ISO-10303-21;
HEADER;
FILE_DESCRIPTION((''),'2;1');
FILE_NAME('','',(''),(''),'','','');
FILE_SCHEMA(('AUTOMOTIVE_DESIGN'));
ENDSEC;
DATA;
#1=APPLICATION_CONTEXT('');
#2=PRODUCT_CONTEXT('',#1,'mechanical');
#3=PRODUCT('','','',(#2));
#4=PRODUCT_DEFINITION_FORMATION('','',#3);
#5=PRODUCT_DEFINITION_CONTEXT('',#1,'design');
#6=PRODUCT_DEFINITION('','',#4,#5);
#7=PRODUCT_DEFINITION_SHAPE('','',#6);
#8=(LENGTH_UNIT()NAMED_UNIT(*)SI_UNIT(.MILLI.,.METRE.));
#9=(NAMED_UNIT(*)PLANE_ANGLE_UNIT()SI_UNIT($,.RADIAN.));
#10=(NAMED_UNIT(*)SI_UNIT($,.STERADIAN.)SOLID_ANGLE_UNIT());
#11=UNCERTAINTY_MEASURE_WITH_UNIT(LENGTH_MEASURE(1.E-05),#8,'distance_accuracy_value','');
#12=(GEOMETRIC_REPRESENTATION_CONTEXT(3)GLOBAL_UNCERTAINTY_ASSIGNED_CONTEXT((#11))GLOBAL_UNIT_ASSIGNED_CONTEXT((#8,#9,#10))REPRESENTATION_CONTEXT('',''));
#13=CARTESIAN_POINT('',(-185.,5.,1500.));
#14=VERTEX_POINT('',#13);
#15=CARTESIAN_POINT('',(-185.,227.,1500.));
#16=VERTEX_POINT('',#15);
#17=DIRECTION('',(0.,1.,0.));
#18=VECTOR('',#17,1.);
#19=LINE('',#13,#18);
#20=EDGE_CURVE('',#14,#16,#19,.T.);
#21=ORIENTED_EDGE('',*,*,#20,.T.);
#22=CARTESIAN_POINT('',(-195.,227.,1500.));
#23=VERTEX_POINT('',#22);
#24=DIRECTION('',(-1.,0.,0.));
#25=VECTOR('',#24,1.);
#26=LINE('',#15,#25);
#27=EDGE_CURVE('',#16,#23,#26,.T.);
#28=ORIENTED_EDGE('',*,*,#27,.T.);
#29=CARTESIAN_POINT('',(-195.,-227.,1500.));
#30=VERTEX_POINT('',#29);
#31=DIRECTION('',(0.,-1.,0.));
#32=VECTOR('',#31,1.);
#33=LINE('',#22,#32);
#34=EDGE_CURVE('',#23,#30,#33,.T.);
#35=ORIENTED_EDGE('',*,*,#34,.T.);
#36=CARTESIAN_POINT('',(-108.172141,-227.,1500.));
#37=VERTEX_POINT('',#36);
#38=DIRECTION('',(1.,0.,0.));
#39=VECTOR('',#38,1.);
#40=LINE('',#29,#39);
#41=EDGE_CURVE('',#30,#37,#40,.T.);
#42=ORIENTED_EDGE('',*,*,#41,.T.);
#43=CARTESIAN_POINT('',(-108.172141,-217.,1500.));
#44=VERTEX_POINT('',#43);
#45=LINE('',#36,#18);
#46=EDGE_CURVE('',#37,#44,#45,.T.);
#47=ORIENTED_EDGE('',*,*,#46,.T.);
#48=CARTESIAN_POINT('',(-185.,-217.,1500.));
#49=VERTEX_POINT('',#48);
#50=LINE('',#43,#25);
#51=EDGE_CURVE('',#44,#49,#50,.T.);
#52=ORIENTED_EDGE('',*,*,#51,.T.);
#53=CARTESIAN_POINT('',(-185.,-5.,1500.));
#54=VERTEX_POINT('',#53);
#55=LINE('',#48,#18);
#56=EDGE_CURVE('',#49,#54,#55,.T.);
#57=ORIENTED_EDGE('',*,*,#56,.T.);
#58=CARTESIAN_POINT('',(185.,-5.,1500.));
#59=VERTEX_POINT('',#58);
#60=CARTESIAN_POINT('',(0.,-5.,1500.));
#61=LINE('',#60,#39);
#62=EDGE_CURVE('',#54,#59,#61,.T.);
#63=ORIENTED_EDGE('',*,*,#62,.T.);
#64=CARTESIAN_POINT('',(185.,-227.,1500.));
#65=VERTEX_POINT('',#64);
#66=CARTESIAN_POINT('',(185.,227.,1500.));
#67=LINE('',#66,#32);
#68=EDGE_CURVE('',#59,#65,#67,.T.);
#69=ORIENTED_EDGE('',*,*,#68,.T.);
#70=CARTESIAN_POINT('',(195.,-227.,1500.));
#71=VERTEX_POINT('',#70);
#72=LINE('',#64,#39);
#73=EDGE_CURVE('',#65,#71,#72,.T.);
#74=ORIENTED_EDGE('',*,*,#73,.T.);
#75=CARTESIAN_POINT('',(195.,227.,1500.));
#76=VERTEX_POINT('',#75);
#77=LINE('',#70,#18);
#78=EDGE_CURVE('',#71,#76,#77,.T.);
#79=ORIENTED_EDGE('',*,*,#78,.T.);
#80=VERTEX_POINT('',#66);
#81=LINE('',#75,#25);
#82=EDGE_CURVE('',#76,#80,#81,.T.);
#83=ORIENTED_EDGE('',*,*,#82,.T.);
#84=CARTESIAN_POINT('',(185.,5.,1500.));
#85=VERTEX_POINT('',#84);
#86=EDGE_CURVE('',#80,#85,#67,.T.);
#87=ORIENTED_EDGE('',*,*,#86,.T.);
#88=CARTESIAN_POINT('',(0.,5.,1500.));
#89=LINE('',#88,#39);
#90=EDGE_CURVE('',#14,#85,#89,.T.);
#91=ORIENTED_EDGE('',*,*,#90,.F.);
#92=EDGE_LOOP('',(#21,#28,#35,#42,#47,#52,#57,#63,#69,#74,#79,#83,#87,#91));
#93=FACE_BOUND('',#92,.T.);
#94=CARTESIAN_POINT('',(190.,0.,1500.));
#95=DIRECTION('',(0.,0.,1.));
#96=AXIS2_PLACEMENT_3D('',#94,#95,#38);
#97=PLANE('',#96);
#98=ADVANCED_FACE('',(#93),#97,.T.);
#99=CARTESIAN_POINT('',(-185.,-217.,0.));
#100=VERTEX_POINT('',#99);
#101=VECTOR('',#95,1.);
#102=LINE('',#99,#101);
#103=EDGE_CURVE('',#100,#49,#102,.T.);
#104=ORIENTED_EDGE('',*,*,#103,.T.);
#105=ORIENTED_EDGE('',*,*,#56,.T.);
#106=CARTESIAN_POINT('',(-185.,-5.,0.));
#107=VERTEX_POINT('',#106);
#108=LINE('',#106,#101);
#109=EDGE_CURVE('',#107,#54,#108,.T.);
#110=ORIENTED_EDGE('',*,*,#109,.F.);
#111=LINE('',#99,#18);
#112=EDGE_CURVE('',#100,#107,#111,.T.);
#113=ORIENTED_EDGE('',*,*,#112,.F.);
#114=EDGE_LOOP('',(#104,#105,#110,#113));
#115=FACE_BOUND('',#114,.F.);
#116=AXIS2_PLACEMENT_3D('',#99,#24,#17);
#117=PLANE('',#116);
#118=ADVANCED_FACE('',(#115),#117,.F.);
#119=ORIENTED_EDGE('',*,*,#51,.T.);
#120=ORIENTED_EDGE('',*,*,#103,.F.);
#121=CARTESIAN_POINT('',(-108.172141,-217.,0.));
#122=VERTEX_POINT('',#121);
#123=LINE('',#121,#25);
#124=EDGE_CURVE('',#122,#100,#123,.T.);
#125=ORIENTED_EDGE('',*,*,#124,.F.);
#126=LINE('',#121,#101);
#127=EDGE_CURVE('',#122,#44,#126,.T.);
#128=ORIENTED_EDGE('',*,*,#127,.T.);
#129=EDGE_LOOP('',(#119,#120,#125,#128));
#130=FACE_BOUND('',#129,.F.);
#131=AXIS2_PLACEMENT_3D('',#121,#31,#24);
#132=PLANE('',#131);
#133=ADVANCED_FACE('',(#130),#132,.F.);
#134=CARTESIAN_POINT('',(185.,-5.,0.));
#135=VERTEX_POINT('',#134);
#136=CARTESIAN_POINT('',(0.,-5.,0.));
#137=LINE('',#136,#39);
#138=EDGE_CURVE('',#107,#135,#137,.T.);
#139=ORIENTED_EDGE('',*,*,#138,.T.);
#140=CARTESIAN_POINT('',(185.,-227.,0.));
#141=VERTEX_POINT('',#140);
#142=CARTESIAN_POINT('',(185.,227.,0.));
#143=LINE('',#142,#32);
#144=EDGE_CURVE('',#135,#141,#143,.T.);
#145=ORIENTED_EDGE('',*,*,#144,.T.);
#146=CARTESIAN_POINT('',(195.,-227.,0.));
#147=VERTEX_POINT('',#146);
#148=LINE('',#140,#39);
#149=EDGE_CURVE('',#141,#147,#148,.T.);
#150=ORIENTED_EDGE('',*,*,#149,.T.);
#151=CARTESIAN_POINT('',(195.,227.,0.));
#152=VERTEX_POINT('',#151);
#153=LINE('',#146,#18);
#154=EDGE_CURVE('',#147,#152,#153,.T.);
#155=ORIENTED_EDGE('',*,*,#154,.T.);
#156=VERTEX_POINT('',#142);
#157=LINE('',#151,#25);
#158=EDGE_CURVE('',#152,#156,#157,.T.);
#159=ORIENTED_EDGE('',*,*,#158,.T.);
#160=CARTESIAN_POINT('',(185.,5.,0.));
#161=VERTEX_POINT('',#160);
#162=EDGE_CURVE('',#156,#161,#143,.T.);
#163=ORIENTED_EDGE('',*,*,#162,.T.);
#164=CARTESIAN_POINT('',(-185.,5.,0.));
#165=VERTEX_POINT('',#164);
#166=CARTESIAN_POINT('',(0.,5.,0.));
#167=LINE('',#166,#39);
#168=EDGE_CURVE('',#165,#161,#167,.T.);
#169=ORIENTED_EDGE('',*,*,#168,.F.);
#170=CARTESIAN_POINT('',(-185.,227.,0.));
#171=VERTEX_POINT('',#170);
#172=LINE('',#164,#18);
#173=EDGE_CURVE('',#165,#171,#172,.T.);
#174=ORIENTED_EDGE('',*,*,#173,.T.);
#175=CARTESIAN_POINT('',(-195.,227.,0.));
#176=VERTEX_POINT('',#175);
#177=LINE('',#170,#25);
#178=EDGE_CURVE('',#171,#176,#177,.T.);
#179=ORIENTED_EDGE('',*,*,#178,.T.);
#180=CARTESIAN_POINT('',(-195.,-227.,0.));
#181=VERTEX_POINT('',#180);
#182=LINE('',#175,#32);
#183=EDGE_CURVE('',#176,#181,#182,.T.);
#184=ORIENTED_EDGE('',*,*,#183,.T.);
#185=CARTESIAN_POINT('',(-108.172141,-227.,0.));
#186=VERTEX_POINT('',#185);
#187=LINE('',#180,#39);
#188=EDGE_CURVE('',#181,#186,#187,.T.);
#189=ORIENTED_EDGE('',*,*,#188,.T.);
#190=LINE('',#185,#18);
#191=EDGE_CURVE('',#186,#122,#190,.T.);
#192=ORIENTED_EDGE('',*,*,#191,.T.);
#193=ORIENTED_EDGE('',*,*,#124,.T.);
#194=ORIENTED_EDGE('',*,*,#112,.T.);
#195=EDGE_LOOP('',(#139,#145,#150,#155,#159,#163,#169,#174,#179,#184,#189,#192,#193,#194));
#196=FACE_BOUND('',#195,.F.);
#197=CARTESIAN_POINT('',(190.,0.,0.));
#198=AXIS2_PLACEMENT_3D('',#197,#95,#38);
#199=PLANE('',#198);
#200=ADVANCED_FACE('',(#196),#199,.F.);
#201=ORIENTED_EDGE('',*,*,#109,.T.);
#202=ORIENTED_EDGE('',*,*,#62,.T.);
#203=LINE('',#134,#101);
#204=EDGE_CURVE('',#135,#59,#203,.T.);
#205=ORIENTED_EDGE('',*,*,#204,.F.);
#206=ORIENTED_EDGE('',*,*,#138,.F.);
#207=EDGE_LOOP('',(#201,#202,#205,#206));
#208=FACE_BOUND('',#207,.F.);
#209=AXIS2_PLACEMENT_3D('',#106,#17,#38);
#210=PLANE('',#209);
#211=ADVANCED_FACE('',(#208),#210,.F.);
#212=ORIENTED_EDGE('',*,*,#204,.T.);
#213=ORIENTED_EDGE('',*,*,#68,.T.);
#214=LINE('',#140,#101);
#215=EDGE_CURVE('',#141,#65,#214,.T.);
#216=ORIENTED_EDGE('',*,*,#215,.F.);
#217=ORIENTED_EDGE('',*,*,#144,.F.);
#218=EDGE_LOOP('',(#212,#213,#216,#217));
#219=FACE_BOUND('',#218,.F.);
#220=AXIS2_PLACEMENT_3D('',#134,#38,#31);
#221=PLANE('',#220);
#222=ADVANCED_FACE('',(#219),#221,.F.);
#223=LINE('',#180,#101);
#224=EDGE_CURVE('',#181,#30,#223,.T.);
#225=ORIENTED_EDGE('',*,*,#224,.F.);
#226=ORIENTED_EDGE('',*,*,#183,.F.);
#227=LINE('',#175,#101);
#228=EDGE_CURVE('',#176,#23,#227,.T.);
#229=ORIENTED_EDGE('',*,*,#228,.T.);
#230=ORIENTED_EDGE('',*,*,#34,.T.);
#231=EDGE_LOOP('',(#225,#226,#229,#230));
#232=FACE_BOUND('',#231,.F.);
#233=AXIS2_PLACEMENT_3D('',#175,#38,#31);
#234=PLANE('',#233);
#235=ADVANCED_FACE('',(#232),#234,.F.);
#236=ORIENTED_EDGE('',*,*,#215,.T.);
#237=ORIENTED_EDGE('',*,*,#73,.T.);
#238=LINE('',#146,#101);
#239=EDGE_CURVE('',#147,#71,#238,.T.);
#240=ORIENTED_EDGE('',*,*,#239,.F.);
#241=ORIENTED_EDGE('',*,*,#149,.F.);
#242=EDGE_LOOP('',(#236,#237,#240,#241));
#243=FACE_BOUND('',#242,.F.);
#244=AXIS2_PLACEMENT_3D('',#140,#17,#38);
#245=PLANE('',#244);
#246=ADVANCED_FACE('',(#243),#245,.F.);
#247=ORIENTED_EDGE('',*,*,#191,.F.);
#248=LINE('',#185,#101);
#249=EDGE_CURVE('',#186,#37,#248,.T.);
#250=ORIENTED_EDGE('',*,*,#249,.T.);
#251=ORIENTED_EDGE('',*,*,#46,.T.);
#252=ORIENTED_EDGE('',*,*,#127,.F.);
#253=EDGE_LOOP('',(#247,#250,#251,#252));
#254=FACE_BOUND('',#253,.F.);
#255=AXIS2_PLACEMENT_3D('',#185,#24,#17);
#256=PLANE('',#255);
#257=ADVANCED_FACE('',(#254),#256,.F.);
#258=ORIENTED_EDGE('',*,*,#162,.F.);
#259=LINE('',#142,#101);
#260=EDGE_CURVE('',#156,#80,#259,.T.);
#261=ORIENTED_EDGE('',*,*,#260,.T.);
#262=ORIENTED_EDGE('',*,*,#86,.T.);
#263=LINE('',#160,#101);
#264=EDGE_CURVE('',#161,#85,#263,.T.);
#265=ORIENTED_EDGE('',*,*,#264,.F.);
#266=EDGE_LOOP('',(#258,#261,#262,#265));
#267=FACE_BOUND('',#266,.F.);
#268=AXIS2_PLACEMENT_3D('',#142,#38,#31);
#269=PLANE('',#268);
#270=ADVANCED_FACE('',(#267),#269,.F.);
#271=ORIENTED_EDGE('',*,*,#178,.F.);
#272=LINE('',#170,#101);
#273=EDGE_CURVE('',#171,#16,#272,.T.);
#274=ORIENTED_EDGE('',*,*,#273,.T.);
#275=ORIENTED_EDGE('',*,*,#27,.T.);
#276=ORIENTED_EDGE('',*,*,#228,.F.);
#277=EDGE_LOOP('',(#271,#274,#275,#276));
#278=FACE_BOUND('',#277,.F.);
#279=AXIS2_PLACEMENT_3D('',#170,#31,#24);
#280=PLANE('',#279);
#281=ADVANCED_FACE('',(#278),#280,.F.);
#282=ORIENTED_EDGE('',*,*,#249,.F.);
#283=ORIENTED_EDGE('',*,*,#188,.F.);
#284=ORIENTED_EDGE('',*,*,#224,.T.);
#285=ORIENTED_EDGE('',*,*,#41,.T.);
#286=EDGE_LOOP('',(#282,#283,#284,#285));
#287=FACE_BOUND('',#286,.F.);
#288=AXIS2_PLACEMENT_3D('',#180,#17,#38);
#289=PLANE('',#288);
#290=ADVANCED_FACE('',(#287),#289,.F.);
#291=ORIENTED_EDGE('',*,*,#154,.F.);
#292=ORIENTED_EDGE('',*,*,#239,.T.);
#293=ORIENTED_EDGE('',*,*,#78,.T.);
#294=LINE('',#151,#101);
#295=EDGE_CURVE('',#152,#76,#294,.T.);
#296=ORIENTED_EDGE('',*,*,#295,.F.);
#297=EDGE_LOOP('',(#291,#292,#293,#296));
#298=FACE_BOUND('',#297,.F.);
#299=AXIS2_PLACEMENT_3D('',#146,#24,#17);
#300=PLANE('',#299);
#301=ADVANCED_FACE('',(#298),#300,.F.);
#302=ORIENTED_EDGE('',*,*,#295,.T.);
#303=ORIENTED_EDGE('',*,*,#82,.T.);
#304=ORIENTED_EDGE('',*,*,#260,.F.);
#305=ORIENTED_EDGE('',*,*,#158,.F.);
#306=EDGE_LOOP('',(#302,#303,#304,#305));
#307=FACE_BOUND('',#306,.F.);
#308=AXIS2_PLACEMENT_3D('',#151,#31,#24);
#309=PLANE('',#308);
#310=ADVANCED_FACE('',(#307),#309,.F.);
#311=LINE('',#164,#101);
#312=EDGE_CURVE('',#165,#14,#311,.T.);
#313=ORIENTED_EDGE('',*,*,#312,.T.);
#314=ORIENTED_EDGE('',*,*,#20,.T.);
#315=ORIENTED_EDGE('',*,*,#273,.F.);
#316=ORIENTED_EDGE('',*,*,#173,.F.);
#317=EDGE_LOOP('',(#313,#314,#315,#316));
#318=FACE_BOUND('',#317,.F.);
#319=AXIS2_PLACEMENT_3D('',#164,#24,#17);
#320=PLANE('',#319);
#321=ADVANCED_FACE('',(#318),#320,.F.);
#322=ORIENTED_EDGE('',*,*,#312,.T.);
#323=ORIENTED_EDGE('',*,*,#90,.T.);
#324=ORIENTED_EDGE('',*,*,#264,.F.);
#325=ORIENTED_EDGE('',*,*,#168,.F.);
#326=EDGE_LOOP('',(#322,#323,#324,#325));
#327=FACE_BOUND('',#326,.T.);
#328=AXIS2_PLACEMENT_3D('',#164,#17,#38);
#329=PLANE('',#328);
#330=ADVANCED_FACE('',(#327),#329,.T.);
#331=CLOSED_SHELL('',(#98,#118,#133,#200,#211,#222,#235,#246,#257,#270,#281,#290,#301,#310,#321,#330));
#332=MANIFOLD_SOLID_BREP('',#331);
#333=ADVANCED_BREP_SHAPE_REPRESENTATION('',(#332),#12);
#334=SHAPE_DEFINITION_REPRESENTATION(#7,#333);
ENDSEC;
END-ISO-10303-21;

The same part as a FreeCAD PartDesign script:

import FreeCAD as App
import Part
import Sketcher


def add_polygon(sketch, points):
    """Adds a closed chain of lines whose ends are joined by coincident constraints."""
    first, n = sketch.GeometryCount, len(points)
    for a, b in zip(points, points[1:] + points[:1]):
        sketch.addGeometry(Part.LineSegment(App.Vector(*a, 0), App.Vector(*b, 0)), False)
    for i in range(n):
        sketch.addConstraint(Sketcher.Constraint("Coincident", first + i, 2, first + (i + 1) % n, 1))

doc = App.newDocument("Part")
body = doc.addObject("PartDesign::Body", "Body")

# Sketch on XY plane
sketch1 = doc.addObject("Sketcher::SketchObject", "Sketch")
body.addObject(sketch1)
sketch1.AttachmentSupport = (doc.XY_Plane, [""])
sketch1.MapMode = "FlatFace"
add_polygon(sketch1, [(185, -227), (195, -227), (195, 227), (185, 227), (185, 5), (-185, 5), (-185, 227), (-195, 227), (-195, -227), (-108, -227), (-108, -217), (-185, -217), (-185, -5), (185, -5)])  # lines 0-13
sketch1.addConstraint([
    Sketcher.Constraint("Horizontal", 0),
    Sketcher.Constraint("Vertical", 1),
    Sketcher.Constraint("Horizontal", 2),
    Sketcher.Constraint("Vertical", 3),
    Sketcher.Constraint("Horizontal", 4),
    Sketcher.Constraint("Vertical", 5),
    Sketcher.Constraint("Horizontal", 6),
    Sketcher.Constraint("Vertical", 7),
    Sketcher.Constraint("Horizontal", 8),
    Sketcher.Constraint("Vertical", 9),
    Sketcher.Constraint("Horizontal", 10),
    Sketcher.Constraint("Vertical", 11),
    Sketcher.Constraint("Horizontal", 12),
    Sketcher.Constraint("Vertical", 13),
    Sketcher.Constraint("Symmetric", 0, 2, 6, 2, -1, 1),
    Sketcher.Constraint("Symmetric", 3, 2, 11, 2, -1, 1),
    Sketcher.Constraint("Symmetric", 2, 2, 5, 2, -2),
    Sketcher.Constraint("Horizontal", 0, 2, 7, 2),
    Sketcher.Constraint("Vertical", 3, 2, 12, 2),
    Sketcher.Constraint("Equal", 6, 9),
    Sketcher.Constraint("DistanceX", 0, 1, 0, 2, 10.0),
    Sketcher.Constraint("DistanceX", 4, 2, 4, 1, 370.0),
    Sketcher.Constraint("DistanceY", 1, 1, 1, 2, 454.0),
    Sketcher.Constraint("DistanceY", 3, 2, 3, 1, 222.0),
    Sketcher.Constraint("DistanceX", 8, 1, 8, 2, 86.827859),
])
pad1 = doc.addObject("PartDesign::Pad", "Pad")
body.addObject(pad1)
pad1.Profile = sketch1
pad1.Length = 1500

doc.recompute()
